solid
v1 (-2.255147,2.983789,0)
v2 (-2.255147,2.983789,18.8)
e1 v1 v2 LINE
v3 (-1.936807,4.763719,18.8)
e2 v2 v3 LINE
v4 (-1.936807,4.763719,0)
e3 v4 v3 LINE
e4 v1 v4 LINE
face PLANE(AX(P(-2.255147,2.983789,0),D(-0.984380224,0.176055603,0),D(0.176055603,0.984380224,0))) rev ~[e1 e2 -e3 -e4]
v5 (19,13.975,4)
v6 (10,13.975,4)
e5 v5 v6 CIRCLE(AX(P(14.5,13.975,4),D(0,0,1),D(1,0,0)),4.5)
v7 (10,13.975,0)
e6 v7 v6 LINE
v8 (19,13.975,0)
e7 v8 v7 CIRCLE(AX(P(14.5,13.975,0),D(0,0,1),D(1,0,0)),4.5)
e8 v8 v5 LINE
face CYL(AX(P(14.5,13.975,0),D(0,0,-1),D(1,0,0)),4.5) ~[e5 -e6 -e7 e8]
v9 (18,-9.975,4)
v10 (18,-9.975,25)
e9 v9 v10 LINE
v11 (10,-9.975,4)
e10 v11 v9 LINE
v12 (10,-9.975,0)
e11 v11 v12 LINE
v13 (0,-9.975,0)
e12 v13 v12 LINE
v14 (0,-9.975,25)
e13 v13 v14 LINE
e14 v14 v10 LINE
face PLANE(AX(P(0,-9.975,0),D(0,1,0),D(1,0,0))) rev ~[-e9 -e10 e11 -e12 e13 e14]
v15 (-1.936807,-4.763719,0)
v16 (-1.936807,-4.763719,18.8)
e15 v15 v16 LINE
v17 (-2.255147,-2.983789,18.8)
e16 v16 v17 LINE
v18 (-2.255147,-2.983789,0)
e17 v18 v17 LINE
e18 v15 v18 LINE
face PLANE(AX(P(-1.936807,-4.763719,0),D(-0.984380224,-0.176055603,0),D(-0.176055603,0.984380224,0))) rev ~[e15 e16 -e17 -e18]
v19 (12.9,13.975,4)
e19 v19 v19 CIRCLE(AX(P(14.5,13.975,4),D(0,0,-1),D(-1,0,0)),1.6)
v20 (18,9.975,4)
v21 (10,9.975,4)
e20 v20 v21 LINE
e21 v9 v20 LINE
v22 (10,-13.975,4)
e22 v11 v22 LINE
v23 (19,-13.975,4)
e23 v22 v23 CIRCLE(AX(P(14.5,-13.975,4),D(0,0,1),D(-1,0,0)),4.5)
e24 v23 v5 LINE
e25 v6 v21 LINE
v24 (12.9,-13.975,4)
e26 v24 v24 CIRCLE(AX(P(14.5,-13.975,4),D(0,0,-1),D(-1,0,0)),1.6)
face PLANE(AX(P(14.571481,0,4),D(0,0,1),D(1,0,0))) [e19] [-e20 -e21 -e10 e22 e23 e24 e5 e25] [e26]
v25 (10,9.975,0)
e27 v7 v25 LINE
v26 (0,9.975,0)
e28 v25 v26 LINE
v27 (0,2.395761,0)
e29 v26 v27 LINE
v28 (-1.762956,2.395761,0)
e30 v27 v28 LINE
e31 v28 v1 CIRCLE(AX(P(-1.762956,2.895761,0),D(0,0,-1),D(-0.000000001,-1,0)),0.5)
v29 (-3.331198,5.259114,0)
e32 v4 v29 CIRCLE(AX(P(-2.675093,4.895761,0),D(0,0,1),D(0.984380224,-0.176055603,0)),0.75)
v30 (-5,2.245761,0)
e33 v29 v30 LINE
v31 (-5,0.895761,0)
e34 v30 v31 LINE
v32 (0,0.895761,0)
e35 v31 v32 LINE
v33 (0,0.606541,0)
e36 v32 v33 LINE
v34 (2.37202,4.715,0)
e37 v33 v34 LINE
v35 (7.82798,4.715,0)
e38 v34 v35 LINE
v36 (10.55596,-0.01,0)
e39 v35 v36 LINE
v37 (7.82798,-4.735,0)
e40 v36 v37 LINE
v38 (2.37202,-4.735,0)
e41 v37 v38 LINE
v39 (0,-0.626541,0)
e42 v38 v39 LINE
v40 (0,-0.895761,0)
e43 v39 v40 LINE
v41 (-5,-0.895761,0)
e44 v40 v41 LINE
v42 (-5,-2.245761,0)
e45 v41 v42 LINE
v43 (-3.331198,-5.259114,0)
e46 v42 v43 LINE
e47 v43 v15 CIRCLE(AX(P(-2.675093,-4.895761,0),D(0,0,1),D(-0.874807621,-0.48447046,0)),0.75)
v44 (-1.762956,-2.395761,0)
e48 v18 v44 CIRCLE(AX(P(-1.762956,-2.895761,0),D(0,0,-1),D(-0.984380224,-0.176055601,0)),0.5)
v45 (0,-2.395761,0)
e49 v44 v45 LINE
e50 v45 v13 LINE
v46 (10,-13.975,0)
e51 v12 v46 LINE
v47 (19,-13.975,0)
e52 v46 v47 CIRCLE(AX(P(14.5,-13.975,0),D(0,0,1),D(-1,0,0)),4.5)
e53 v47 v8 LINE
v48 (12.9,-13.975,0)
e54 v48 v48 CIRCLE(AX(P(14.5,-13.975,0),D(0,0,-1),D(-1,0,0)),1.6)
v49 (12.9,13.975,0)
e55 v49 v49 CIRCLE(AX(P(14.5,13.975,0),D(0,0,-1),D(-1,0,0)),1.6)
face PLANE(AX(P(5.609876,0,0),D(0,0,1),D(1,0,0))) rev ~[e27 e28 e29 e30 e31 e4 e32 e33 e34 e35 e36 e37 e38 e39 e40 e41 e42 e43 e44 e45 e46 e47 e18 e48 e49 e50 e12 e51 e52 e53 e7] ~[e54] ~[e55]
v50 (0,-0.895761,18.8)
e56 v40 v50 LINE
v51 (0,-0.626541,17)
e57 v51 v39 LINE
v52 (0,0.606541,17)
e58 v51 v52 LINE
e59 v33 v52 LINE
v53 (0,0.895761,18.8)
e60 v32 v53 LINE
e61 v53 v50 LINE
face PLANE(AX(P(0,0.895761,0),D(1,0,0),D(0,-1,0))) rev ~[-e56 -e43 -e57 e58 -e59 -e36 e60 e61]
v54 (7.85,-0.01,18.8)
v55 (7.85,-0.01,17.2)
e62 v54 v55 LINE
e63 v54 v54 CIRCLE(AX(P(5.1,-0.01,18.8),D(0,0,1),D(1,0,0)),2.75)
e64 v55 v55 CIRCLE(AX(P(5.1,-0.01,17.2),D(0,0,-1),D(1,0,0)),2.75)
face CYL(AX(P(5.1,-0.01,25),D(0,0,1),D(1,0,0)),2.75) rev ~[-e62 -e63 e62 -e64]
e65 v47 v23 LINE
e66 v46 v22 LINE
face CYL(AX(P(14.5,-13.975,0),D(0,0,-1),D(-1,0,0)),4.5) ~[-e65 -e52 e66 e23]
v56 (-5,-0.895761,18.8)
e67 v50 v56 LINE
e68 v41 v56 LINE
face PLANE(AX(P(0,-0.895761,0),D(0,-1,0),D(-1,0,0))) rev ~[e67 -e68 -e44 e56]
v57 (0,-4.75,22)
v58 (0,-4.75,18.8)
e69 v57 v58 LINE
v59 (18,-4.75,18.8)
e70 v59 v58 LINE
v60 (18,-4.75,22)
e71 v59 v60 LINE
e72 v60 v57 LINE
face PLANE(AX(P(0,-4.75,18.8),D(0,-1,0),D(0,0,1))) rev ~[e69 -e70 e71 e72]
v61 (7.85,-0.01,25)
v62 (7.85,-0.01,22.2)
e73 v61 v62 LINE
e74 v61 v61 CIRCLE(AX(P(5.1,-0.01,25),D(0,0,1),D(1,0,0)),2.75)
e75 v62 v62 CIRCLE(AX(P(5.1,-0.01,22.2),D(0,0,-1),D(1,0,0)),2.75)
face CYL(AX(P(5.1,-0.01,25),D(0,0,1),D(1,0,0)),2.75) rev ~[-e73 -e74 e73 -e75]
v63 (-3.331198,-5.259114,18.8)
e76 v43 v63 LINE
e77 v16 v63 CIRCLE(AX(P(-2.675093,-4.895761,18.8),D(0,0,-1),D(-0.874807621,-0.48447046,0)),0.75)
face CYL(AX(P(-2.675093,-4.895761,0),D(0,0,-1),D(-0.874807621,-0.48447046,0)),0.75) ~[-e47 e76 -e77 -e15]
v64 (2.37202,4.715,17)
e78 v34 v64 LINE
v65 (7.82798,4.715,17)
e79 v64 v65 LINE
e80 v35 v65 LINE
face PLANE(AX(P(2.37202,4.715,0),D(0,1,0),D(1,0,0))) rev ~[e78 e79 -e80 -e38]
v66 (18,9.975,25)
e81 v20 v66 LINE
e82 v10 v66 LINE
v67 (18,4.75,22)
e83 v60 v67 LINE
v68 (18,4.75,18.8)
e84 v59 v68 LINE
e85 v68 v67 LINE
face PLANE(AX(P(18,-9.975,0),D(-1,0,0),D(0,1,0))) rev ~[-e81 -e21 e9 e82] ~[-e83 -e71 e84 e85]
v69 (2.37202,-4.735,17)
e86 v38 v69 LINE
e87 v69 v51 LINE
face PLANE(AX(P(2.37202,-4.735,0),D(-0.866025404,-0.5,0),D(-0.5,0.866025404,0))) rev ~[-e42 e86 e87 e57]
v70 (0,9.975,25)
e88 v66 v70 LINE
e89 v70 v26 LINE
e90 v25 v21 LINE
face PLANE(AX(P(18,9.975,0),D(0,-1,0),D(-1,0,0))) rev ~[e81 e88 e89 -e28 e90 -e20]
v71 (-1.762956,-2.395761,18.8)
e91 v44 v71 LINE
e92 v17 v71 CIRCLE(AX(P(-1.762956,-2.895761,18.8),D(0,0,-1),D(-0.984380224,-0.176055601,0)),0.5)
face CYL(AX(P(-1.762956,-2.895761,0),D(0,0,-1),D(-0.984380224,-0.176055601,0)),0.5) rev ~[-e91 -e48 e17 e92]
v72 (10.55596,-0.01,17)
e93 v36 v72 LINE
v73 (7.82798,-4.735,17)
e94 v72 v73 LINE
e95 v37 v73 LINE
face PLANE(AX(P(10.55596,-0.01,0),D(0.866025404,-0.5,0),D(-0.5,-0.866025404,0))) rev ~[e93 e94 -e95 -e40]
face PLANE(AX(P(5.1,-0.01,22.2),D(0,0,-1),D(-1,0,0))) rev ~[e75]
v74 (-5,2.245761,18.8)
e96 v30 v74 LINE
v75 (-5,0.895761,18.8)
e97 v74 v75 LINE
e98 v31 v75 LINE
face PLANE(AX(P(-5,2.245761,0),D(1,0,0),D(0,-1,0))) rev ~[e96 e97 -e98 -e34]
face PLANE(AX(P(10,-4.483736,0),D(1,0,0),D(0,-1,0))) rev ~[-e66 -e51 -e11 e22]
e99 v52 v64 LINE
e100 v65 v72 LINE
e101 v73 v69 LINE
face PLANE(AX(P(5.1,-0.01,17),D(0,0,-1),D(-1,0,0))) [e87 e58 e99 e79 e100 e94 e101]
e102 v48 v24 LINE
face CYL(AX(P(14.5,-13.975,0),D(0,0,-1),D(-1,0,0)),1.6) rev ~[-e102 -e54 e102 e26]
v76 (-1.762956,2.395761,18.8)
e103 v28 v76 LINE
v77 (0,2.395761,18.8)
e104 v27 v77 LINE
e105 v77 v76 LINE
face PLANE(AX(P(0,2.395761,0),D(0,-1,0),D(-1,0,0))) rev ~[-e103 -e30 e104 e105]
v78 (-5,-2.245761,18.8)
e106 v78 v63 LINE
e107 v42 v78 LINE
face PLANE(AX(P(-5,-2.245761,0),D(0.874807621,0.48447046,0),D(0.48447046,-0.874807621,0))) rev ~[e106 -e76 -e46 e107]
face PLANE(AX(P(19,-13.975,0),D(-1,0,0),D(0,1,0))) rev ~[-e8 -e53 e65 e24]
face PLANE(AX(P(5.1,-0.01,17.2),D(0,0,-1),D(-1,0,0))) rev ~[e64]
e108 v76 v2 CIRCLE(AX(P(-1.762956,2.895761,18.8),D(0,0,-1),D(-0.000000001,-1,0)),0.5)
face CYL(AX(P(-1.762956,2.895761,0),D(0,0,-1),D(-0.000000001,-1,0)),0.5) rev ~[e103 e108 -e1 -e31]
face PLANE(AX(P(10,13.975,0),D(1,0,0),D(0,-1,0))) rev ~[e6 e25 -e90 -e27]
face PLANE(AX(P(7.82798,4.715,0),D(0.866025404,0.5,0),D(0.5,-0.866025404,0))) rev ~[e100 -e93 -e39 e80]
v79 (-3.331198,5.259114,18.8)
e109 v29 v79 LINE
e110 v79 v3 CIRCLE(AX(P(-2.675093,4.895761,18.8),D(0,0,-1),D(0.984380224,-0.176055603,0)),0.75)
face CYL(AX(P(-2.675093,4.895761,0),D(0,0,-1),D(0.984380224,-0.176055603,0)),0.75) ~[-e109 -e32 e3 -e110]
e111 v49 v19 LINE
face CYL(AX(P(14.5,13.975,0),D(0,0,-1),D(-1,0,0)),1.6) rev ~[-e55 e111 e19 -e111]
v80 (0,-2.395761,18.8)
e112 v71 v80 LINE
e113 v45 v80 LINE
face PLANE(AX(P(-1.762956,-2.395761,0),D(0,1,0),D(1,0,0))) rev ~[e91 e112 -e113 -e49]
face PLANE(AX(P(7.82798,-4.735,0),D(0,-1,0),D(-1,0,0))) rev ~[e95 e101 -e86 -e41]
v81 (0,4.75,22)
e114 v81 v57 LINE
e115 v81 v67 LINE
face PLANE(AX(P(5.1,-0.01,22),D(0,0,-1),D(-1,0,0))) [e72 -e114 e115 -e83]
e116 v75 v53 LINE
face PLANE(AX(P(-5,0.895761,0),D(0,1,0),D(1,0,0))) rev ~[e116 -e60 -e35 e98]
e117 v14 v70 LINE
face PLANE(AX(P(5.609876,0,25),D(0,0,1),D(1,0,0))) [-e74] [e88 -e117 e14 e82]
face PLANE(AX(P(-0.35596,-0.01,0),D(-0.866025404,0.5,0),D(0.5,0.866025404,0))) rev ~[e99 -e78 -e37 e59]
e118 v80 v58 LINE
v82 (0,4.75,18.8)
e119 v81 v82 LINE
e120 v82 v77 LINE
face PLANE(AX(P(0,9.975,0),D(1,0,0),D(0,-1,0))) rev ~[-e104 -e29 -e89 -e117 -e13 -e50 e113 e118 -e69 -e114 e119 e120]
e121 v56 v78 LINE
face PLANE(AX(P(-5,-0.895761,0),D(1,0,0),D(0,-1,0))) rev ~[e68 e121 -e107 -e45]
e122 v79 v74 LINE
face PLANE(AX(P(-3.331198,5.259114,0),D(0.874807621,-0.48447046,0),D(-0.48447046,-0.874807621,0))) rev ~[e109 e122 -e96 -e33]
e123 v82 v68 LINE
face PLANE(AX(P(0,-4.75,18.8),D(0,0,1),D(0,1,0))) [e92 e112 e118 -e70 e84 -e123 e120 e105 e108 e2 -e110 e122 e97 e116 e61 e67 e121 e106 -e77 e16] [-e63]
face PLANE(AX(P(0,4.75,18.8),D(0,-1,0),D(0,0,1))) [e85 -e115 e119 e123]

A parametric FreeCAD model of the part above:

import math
import FreeCAD as App
import Part
import Sketcher

V = App.Vector
Q = App.Units.Quantity


def add_polygon(sketch, points):
    """Adds a closed chain of lines whose ends are joined by coincident constraints."""
    first, n = sketch.GeometryCount, len(points)
    for a, b in zip(points, points[1:] + points[:1]):
        sketch.addGeometry(Part.LineSegment(App.Vector(*a, 0), App.Vector(*b, 0)), False)
    for i in range(n):
        sketch.addConstraint(Sketcher.Constraint("Coincident", first + i, 2, first + (i + 1) % n, 1))

doc = App.newDocument("Part")
body = doc.addObject("PartDesign::Body", "Body")

sketch1 = doc.addObject("Sketcher::SketchObject", "Sketch")
body.addObject(sketch1)
sketch1.AttachmentSupport = (doc.XY_Plane, [""])
sketch1.MapMode = "FlatFace"
sketch1.addGeometry([
    Part.LineSegment(V(0, 2.4, 0), V(-1.8, 2.4, 0)),
    Part.ArcOfCircle(Part.Circle(V(-1.8, 2.9, 0), V(0, 0, 1), 0.5), math.radians(170), math.radians(270)),
    Part.LineSegment(V(-2.3, 3, 0), V(-1.9, 4.8, 0)),
    Part.ArcOfCircle(Part.Circle(V(-2.7, 4.9, 0), V(0, 0, 1), 0.8), math.radians(-10), math.radians(151)),
    Part.LineSegment(V(-3.3, 5.3, 0), V(-5, 2.2, 0)),
    Part.LineSegment(V(-5, 2.2, 0), V(-5, 0.9, 0)),
    Part.LineSegment(V(-5, 0.9, 0), V(0, 0.9, 0)),
    Part.LineSegment(V(0, 0.9, 0), V(0, -0.9, 0)),
    Part.LineSegment(V(0, -0.9, 0), V(-5, -0.9, 0)),
    Part.LineSegment(V(-5, -0.9, 0), V(-5, -2.2, 0)),
    Part.LineSegment(V(-5, -2.2, 0), V(-3.3, -5.3, 0)),
    Part.ArcOfCircle(Part.Circle(V(-2.7, -4.9, 0), V(0, 0, 1), 0.8), math.radians(-151), math.radians(10)),
    Part.LineSegment(V(-1.9, -4.8, 0), V(-2.3, -3, 0)),
    Part.ArcOfCircle(Part.Circle(V(-1.8, -2.9, 0), V(0, 0, 1), 0.5), math.radians(90), math.radians(190)),
    Part.LineSegment(V(-1.8, -2.4, 0), V(0, -2.4, 0)),
    Part.LineSegment(V(0, -2.4, 0), V(0, -10, 0)),
    Part.LineSegment(V(0, -10, 0), V(18, -10, 0)),
    Part.LineSegment(V(18, -10, 0), V(18, 10, 0)),
    Part.LineSegment(V(18, 10, 0), V(0, 10, 0)),
    Part.LineSegment(V(0, 10, 0), V(0, 2.4, 0)),
], False)
sketch1.addConstraint([
    Sketcher.Constraint("Tangent", 0, 2, 1, 2),
    Sketcher.Constraint("Tangent", 1, 1, 2, 1),
    Sketcher.Constraint("Tangent", 2, 2, 3, 1),
    Sketcher.Constraint("Tangent", 3, 2, 4, 1),
    Sketcher.Constraint("Coincident", 4, 2, 5, 1),
    Sketcher.Constraint("Coincident", 5, 2, 6, 1),
    Sketcher.Constraint("Coincident", 6, 2, 7, 1),
    Sketcher.Constraint("Coincident", 7, 2, 8, 1),
    Sketcher.Constraint("Coincident", 8, 2, 9, 1),
    Sketcher.Constraint("Coincident", 9, 2, 10, 1),
    Sketcher.Constraint("Tangent", 10, 2, 11, 1),
    Sketcher.Constraint("Tangent", 11, 2, 12, 1),
    Sketcher.Constraint("Tangent", 12, 2, 13, 2),
    Sketcher.Constraint("Tangent", 13, 1, 14, 1),
    Sketcher.Constraint("Coincident", 14, 2, 15, 1),
    Sketcher.Constraint("Coincident", 15, 2, 16, 1),
    Sketcher.Constraint("Coincident", 16, 2, 17, 1),
    Sketcher.Constraint("Coincident", 17, 2, 18, 1),
    Sketcher.Constraint("Coincident", 18, 2, 19, 1),
    Sketcher.Constraint("Coincident", 19, 2, 0, 1),
    Sketcher.Constraint("Horizontal", 0),
    Sketcher.Constraint("Vertical", 5),
    Sketcher.Constraint("Horizontal", 6),
    Sketcher.Constraint("Vertical", 7),
    Sketcher.Constraint("Horizontal", 8),
    Sketcher.Constraint("Vertical", 9),
    Sketcher.Constraint("Horizontal", 14),
    Sketcher.Constraint("Vertical", 15),
    Sketcher.Constraint("Horizontal", 16),
    Sketcher.Constraint("Vertical", 17),
    Sketcher.Constraint("Horizontal", 18),
    Sketcher.Constraint("Vertical", 19),
    Sketcher.Constraint("Equal", 3, 11),
    Sketcher.Constraint("Equal", 1, 13),
    Sketcher.Constraint("Symmetric", 6, 2, 7, 2, -1, 1),
    Sketcher.Constraint("Symmetric", 15, 2, 18, 2, -1, 1),
    Sketcher.Constraint("Symmetric", 3, 3, 11, 3, -1),
    Sketcher.Constraint("Symmetric", 1, 3, 13, 3, -1),
    Sketcher.Constraint("Symmetric", 4, 2, 9, 2, -1),
    Sketcher.Constraint("PointOnObject", 14, 2, -2),
    Sketcher.Constraint("Radius", 1, 0.5),
    Sketcher.Constraint("DistanceX", 6, 1, 6, 2, 5.0),
    Sketcher.Constraint("DistanceX", 16, 1, 16, 2, 18.0),
    Sketcher.Constraint("Radius", 3, 0.75),
    Sketcher.Constraint("DistanceY", 1, 3, 3, 3, 2.0),
    Sketcher.Constraint("DistanceY", 5, 2, 1, 3, 2.0),
    Sketcher.Constraint("DistanceY", 5, 2, 5, 1, 1.35),
    Sketcher.Constraint("DistanceY", 17, 1, 17, 2, 19.95),
    Sketcher.Constraint("DistanceY", 15, 2, 15, 1, 7.579239),
    Sketcher.Constraint("DistanceX", 3, 2, -1, 1, 3.331198),
    Sketcher.Constraint("DistanceX", 0, 2, 0, 1, 1.762956),
])
pad1 = doc.addObject("PartDesign::Pad", "Pad")
body.addObject(pad1)
pad1.Profile = sketch1
pad1.Length = 25

sketch2 = doc.addObject("Sketcher::SketchObject", "Sketch001")
body.addObject(sketch2)
sketch2.AttachmentSupport = (doc.YZ_Plane, [""])
sketch2.MapMode = "FlatFace"
add_polygon(sketch2, [(4.8, 18.8), (-4.8, 18.8), (-4.8, 22), (4.8, 22)])
sketch2.addConstraint([
    Sketcher.Constraint("Horizontal", 0),
    Sketcher.Constraint("Vertical", 1),
    Sketcher.Constraint("Horizontal", 2),
    Sketcher.Constraint("Vertical", 3),
    Sketcher.Constraint("DistanceX", 0, 2, 0, 1, 9.5),
    Sketcher.Constraint("DistanceY", 1, 1, 1, 2, 3.2),
    Sketcher.Constraint("DistanceY", -1, 1, 1, 2, 22.0),
    Sketcher.Constraint("DistanceX", 0, 2, -1, 1, 4.75),
])
pocket1 = doc.addObject("PartDesign::Pocket", "Pocket")
body.addObject(pocket1)
pocket1.Profile = sketch2
pocket1.Length = 111
pocket1.Midplane = True

sketch3 = doc.addObject("Sketcher::SketchObject", "Sketch002")
body.addObject(sketch3)
sketch3.AttachmentSupport = (doc.XY_Plane, [""])
sketch3.MapMode = "FlatFace"
sketch3.AttachmentOffset = App.Placement(V(0, 0, 25), App.Rotation())
sketch3.addGeometry(Part.Circle(V(5.1, 0, 0), V(0, 0, 1), 2.8), False)
sketch3.addConstraint([
    Sketcher.Constraint("Diameter", 0, 5.5),
    Sketcher.Constraint("DistanceX", -1, 1, 0, 3, 5.1),
    Sketcher.Constraint("DistanceY", 0, 3, -1, 1, 0.01),
])
pocket2 = doc.addObject("PartDesign::Pocket", "Pocket001")
body.addObject(pocket2)
pocket2.Profile = sketch3
pocket2.Length = 37

sketch4 = doc.addObject("Sketcher::SketchObject", "Sketch003")
body.addObject(sketch4)
sketch4.AttachmentSupport = (doc.XY_Plane, [""])
sketch4.MapMode = "FlatFace"
add_polygon(sketch4, [(11, 0), (8, -5), (2, -5), (0, 0), (2, 5), (8, 5)])
sketch4.addConstraint([
    Sketcher.Constraint("Horizontal", 1),
    Sketcher.Constraint("Horizontal", 4),
    Sketcher.Constraint("Parallel", 0, 3),
    Sketcher.Constraint("Parallel", 2, 5),
    Sketcher.Constraint("Horizontal", 2, 2, 5, 2),
    Sketcher.Constraint("Vertical", 1, 2, 3, 2),
    Sketcher.Constraint("Vertical", 0, 2, 4, 2),
    Sketcher.Constraint("Angle", 0, Q("-120 deg")),
    Sketcher.Constraint("DistanceY", 2, 2, -1, 1, 0.01),
    Sketcher.Constraint("DistanceY", 1, 2, 3, 2, 9.45),
    Sketcher.Constraint("DistanceX", 1, 2, 1, 1, 5.45596),
    Sketcher.Constraint("DistanceX", -1, 1, 0, 2, 7.82798),
])
pocket3 = doc.addObject("PartDesign::Pocket", "Pocket002")
body.addObject(pocket3)
pocket3.Profile = sketch4
pocket3.Length = 17
pocket3.Reversed = True

sketch5 = doc.addObject("Sketcher::SketchObject", "Sketch004")
body.addObject(sketch5)
sketch5.AttachmentSupport = (doc.YZ_Plane, [""])
sketch5.MapMode = "FlatFace"
add_polygon(sketch5, [(10, 19), (-10, 19), (-10, 25), (10, 25)])
sketch5.addConstraint([
    Sketcher.Constraint("Horizontal", 0),
    Sketcher.Constraint("Vertical", 1),
    Sketcher.Constraint("Horizontal", 2),
    Sketcher.Constraint("Vertical", 3),
    Sketcher.Constraint("DistanceY", 1, 1, 1, 2, 6.2),
    Sketcher.Constraint("DistanceY", -1, 1, 1, 2, 25.0),
    Sketcher.Constraint("DistanceX", 0, 2, 0, 1, 19.95),
    Sketcher.Constraint("DistanceX", 0, 2, -1, 1, 9.975),
])
pocket4 = doc.addObject("PartDesign::Pocket", "Pocket003")
body.addObject(pocket4)
pocket4.Profile = sketch5
pocket4.Length = 18

sketch6 = doc.addObject("Sketcher::SketchObject", "Sketch005")
body.addObject(sketch6)
sketch6.AttachmentSupport = (doc.XY_Plane, [""])
sketch6.MapMode = "FlatFace"
sketch6.AttachmentOffset = App.Placement(V(0, 0, 17), App.Rotation())
sketch6.addGeometry(Part.Circle(V(5.1, 0, 0), V(0, 0, 1), 2.8), False)
sketch6.addConstraint([
    Sketcher.Constraint("Diameter", 0, 5.5),
    Sketcher.Constraint("DistanceX", -1, 1, 0, 3, 5.1),
    Sketcher.Constraint("DistanceY", 0, 3, -1, 1, 0.01),
])
pad2 = doc.addObject("PartDesign::Pad", "Pad001")
body.addObject(pad2)
pad2.Profile = sketch6
pad2.Length = 0.2

sketch7 = doc.addObject("Sketcher::SketchObject", "Sketch006")
body.addObject(sketch7)
sketch7.AttachmentSupport = (doc.XY_Plane, [""])
sketch7.MapMode = "FlatFace"
sketch7.AttachmentOffset = App.Placement(V(0, 0, 22), App.Rotation())
sketch7.addGeometry(Part.Circle(V(5.1, 0, 0), V(0, 0, 1), 2.8), False)
sketch7.addConstraint([
    Sketcher.Constraint("Diameter", 0, 5.5),
    Sketcher.Constraint("DistanceX", -1, 1, 0, 3, 5.1),
    Sketcher.Constraint("DistanceY", 0, 3, -1, 1, 0.01),
])
pad3 = doc.addObject("PartDesign::Pad", "Pad002")
body.addObject(pad3)
pad3.Profile = sketch7
pad3.Length = 0.2

sketch8 = doc.addObject("Sketcher::SketchObject", "Sketch007")
body.addObject(sketch8)
sketch8.AttachmentSupport = (doc.XY_Plane, [""])
sketch8.MapMode = "FlatFace"
sketch8.addGeometry([
    Part.LineSegment(V(12, 0, 0), V(10, 4.5, 0)),
    Part.LineSegment(V(10, 4.5, 0), V(10, 14, 0)),
    Part.ArcOfCircle(Part.Circle(V(14.5, 14, 0), V(0, 0, 1), 4.5), math.radians(0), math.radians(180)),
    Part.LineSegment(V(19, 14, 0), V(19, -14, 0)),
    Part.ArcOfCircle(Part.Circle(V(14.5, -14, 0), V(0, 0, 1), 4.5), math.radians(180), math.radians(360)),
    Part.LineSegment(V(10, -14, 0), V(10, -4.5, 0)),
    Part.LineSegment(V(10, -4.5, 0), V(12, 0, 0)),
    Part.Circle(V(14.5, -14, 0), V(0, 0, 1), 1.6),
    Part.Circle(V(14.5, 14, 0), V(0, 0, 1), 1.6),
], False)
sketch8.addConstraint([
    Sketcher.Constraint("Coincident", 0, 2, 1, 1),
    Sketcher.Constraint("Tangent", 1, 2, 2, 2),
    Sketcher.Constraint("Tangent", 2, 1, 3, 1),
    Sketcher.Constraint("Tangent", 3, 2, 4, 2),
    Sketcher.Constraint("Tangent", 4, 1, 5, 1),
    Sketcher.Constraint("Coincident", 5, 2, 6, 1),
    Sketcher.Constraint("Coincident", 6, 2, 0, 1),
    Sketcher.Constraint("Vertical", 1),
    Sketcher.Constraint("Vertical", 3),
    Sketcher.Constraint("Vertical", 5),
    Sketcher.Constraint("Coincident", 7, 3, 4, 3),
    Sketcher.Constraint("Coincident", 8, 3, 2, 3),
    Sketcher.Constraint("Equal", 2, 4),
    Sketcher.Constraint("Equal", 7, 8),
    Sketcher.Constraint("PointOnObject", 6, 2, -1),
    Sketcher.Constraint("Equal", 1, 5),
    Sketcher.Constraint("Equal", 0, 6),
    Sketcher.Constraint("Diameter", 7, 3.2),
    Sketcher.Constraint("Radius", 2, 4.5),
    Sketcher.Constraint("DistanceX", -1, 1, 0, 2, 10.0),
    Sketcher.Constraint("DistanceX", -1, 1, 6, 2, 12.0),
    Sketcher.Constraint("DistanceY", 3, 2, 3, 1, 27.95),
    Sketcher.Constraint("Distance", 0, 4.909571),
])
pad4 = doc.addObject("PartDesign::Pad", "Pad003")
body.addObject(pad4)
pad4.Profile = sketch8
pad4.Length = 4

doc.recompute()
